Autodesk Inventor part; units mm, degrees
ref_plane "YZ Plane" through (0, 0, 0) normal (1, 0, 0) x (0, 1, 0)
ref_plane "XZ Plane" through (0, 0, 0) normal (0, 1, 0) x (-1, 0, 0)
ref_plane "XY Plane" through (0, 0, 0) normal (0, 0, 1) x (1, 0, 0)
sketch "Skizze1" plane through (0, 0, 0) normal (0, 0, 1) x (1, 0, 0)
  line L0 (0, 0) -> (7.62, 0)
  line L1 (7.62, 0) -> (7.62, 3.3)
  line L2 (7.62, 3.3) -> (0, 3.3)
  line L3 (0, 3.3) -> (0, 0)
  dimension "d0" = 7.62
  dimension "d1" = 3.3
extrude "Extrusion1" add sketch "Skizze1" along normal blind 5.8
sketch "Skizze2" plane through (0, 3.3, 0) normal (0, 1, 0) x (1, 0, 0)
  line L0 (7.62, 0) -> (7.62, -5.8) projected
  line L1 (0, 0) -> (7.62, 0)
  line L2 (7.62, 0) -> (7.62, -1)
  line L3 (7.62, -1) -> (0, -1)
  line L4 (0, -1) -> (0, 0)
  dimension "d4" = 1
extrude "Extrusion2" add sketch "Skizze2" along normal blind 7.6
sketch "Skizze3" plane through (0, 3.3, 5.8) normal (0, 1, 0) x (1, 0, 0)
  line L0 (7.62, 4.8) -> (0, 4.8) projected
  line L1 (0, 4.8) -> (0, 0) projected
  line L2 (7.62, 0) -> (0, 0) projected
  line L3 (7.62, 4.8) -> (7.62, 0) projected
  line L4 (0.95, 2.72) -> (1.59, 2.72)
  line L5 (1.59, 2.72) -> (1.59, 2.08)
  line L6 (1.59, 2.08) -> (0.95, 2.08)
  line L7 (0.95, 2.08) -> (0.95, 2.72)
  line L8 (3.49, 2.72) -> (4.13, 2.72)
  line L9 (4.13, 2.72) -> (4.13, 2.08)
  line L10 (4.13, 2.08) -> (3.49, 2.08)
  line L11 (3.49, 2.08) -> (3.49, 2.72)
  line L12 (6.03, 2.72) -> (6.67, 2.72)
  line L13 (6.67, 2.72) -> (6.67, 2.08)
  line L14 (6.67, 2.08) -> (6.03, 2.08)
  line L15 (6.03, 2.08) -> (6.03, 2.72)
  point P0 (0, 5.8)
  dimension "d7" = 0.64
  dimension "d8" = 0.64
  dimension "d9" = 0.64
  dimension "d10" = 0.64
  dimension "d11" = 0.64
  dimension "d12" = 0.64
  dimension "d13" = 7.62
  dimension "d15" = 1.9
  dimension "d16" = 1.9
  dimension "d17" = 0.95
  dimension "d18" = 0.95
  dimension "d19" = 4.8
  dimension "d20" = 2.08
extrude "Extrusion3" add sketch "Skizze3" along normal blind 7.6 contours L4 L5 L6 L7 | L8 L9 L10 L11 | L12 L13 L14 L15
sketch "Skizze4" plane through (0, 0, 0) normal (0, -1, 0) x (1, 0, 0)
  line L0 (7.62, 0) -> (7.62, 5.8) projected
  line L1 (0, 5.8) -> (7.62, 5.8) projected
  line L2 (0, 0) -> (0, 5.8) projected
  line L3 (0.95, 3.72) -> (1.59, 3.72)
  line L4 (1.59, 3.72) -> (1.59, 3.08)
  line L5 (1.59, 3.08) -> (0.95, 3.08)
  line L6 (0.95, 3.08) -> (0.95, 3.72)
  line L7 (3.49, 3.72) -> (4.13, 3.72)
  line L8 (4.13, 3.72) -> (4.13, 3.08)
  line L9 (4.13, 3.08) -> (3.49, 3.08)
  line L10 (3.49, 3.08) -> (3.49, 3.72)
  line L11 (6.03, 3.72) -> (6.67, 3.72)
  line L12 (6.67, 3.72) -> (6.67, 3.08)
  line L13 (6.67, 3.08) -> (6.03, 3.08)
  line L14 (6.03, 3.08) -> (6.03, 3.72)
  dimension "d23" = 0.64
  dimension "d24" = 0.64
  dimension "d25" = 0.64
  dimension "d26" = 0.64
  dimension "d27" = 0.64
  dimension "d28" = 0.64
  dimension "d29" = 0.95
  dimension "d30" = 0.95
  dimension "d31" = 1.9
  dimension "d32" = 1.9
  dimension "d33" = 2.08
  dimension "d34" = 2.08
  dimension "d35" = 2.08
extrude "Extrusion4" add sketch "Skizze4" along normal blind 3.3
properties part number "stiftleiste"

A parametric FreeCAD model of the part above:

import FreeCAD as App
import Part
import Sketcher

doc = App.newDocument("Part")
body = doc.addObject("PartDesign::Body", "Body")

# Sketch on XY plane
sketch1 = body.newObject("Sketcher::SketchObject", "Sketch")
sketch1.AttachmentSupport = (doc.getObject("XY_Plane"), [""])
sketch1.MapMode = "FlatFace"
sketch1.addGeometry([
    Part.LineSegment(App.Vector(0, 3.3, 0), App.Vector(0, 0, 0)),
    Part.LineSegment(App.Vector(0, 0, 0), App.Vector(7.6, 0, 0)),
    Part.LineSegment(App.Vector(7.6, 0, 0), App.Vector(7.6, 3.3, 0)),
    Part.LineSegment(App.Vector(7.6, 3.3, 0), App.Vector(0, 3.3, 0)),
], False)
sketch1.addConstraint([
    Sketcher.Constraint("Coincident", 0, 2, 1, 1),
    Sketcher.Constraint("Coincident", 1, 2, 2, 1),
    Sketcher.Constraint("Coincident", 2, 2, 3, 1),
    Sketcher.Constraint("Coincident", 3, 2, 0, 1),
    Sketcher.Constraint("Vertical", 0),
    Sketcher.Constraint("Horizontal", 1),
    Sketcher.Constraint("Vertical", 2),
    Sketcher.Constraint("Horizontal", 3),
    Sketcher.Constraint("Coincident", 0, 2, -1, 1),
    Sketcher.Constraint("DistanceY", 0, 2, 0, 1, 3.3),
    Sketcher.Constraint("DistanceX", 1, 1, 1, 2, 7.62),
])
pad1 = body.newObject("PartDesign::Pad", "Pad")
pad1.Profile = sketch1
pad1.Length = 5.8

# Sketch on XZ plane
sketch2 = body.newObject("Sketcher::SketchObject", "Sketch001")
sketch2.AttachmentSupport = (doc.getObject("XZ_Plane"), [""])
sketch2.MapMode = "FlatFace"
sketch2.AttachmentOffset = App.Placement(App.Vector(0, 0, -3.3), App.Rotation())
sketch2.addGeometry([
    Part.LineSegment(App.Vector(7.6, 1, 0), App.Vector(7.6, 0, 0)),
    Part.LineSegment(App.Vector(7.6, 0, 0), App.Vector(0, 0, 0)),
    Part.LineSegment(App.Vector(0, 0, 0), App.Vector(0, 1, 0)),
    Part.LineSegment(App.Vector(0, 1, 0), App.Vector(7.6, 1, 0)),
], False)
sketch2.addConstraint([
    Sketcher.Constraint("Coincident", 0, 2, 1, 1),
    Sketcher.Constraint("Coincident", 1, 2, 2, 1),
    Sketcher.Constraint("Coincident", 2, 2, 3, 1),
    Sketcher.Constraint("Coincident", 3, 2, 0, 1),
    Sketcher.Constraint("Vertical", 0),
    Sketcher.Constraint("Horizontal", 1),
    Sketcher.Constraint("Vertical", 2),
    Sketcher.Constraint("Horizontal", 3),
    Sketcher.Constraint("Coincident", 1, 2, -1, 1),
    Sketcher.Constraint("DistanceY", 0, 2, 0, 1, 1.0),
    Sketcher.Constraint("DistanceX", 1, 2, 1, 1, 7.62),
])
pad2 = body.newObject("PartDesign::Pad", "Pad001")
pad2.Profile = sketch2
pad2.Length = 7.6
pad2.Reversed = True

# Sketch on XZ plane
sketch3 = body.newObject("Sketcher::SketchObject", "Sketch002")
sketch3.AttachmentSupport = (doc.getObject("XZ_Plane"), [""])
sketch3.MapMode = "FlatFace"
sketch3.AttachmentOffset = App.Placement(App.Vector(0, 0, -3.3), App.Rotation())
sketch3.addGeometry([
    Part.LineSegment(App.Vector(1.6, 3.1, 0), App.Vector(0.9, 3.1, 0)),  # 0
    Part.LineSegment(App.Vector(0.9, 3.1, 0), App.Vector(0.9, 3.7, 0)),  # 1
    Part.LineSegment(App.Vector(0.9, 3.7, 0), App.Vector(1.6, 3.7, 0)),  # 2
    Part.LineSegment(App.Vector(1.6, 3.7, 0), App.Vector(1.6, 3.1, 0)),  # 3
    Part.LineSegment(App.Vector(4.1, 3.1, 0), App.Vector(3.5, 3.1, 0)),  # 4
    Part.LineSegment(App.Vector(3.5, 3.1, 0), App.Vector(3.5, 3.7, 0)),  # 5
    Part.LineSegment(App.Vector(3.5, 3.7, 0), App.Vector(4.1, 3.7, 0)),  # 6
    Part.LineSegment(App.Vector(4.1, 3.7, 0), App.Vector(4.1, 3.1, 0)),  # 7
    Part.LineSegment(App.Vector(6.7, 3.1, 0), App.Vector(6, 3.1, 0)),  # 8
    Part.LineSegment(App.Vector(6, 3.1, 0), App.Vector(6, 3.7, 0)),  # 9
    Part.LineSegment(App.Vector(6, 3.7, 0), App.Vector(6.7, 3.7, 0)),  # 10
    Part.LineSegment(App.Vector(6.7, 3.7, 0), App.Vector(6.7, 3.1, 0)),  # 11
], False)
sketch3.addConstraint([
    Sketcher.Constraint("Coincident", 0, 2, 1, 1),
    Sketcher.Constraint("Coincident", 1, 2, 2, 1),
    Sketcher.Constraint("Coincident", 2, 2, 3, 1),
    Sketcher.Constraint("Coincident", 3, 2, 0, 1),
    Sketcher.Constraint("Coincident", 4, 2, 5, 1),
    Sketcher.Constraint("Coincident", 5, 2, 6, 1),
    Sketcher.Constraint("Coincident", 6, 2, 7, 1),
    Sketcher.Constraint("Coincident", 7, 2, 4, 1),
    Sketcher.Constraint("Coincident", 8, 2, 9, 1),
    Sketcher.Constraint("Coincident", 9, 2, 10, 1),
    Sketcher.Constraint("Coincident", 10, 2, 11, 1),
    Sketcher.Constraint("Coincident", 11, 2, 8, 1),
    Sketcher.Constraint("Horizontal", 0),
    Sketcher.Constraint("Vertical", 1),
    Sketcher.Constraint("Horizontal", 2),
    Sketcher.Constraint("Vertical", 3),
    Sketcher.Constraint("Horizontal", 4),
    Sketcher.Constraint("Vertical", 5),
    Sketcher.Constraint("Horizontal", 6),
    Sketcher.Constraint("Vertical", 7),
    Sketcher.Constraint("Horizontal", 8),
    Sketcher.Constraint("Vertical", 9),
    Sketcher.Constraint("Horizontal", 10),
    Sketcher.Constraint("Vertical", 11),
    Sketcher.Constraint("Horizontal", 3, 2, 4, 2),
    Sketcher.Constraint("Horizontal", 2, 2, 5, 2),
    Sketcher.Constraint("Horizontal", 7, 2, 8, 2),
    Sketcher.Constraint("Horizontal", 6, 2, 9, 2),
    Sketcher.Constraint("Equal", 2, 4),
    Sketcher.Constraint("Equal", 6, 8),
    Sketcher.Constraint("Equal", 10, 1),
    Sketcher.Constraint("DistanceX", 0, 2, 0, 1, 0.64),
    Sketcher.Constraint("DistanceX", 3, 2, 4, 2, 1.9),
    Sketcher.Constraint("DistanceX", 7, 2, 8, 2, 1.9),
    Sketcher.Constraint("DistanceX", -1, 1, 0, 2, 0.95),
    Sketcher.Constraint("DistanceY", -1, 1, 0, 2, 3.08),
])
pad3 = body.newObject("PartDesign::Pad", "Pad002")
pad3.Profile = sketch3
pad3.Length = 7.6
pad3.Reversed = True

# Sketch on XZ plane
sketch4 = body.newObject("Sketcher::SketchObject", "Sketch003")
sketch4.AttachmentSupport = (doc.getObject("XZ_Plane"), [""])
sketch4.MapMode = "FlatFace"
sketch4.addGeometry([
    Part.LineSegment(App.Vector(1.6, 3.7, 0), App.Vector(0.9, 3.7, 0)),  # 0
    Part.LineSegment(App.Vector(0.9, 3.7, 0), App.Vector(0.9, 3.1, 0)),  # 1
    Part.LineSegment(App.Vector(0.9, 3.1, 0), App.Vector(1.6, 3.1, 0)),  # 2
    Part.LineSegment(App.Vector(1.6, 3.1, 0), App.Vector(1.6, 3.7, 0)),  # 3
    Part.LineSegment(App.Vector(4.1, 3.7, 0), App.Vector(3.5, 3.7, 0)),  # 4
    Part.LineSegment(App.Vector(3.5, 3.7, 0), App.Vector(3.5, 3.1, 0)),  # 5
    Part.LineSegment(App.Vector(3.5, 3.1, 0), App.Vector(4.1, 3.1, 0)),  # 6
    Part.LineSegment(App.Vector(4.1, 3.1, 0), App.Vector(4.1, 3.7, 0)),  # 7
    Part.LineSegment(App.Vector(6.7, 3.7, 0), App.Vector(6, 3.7, 0)),  # 8
    Part.LineSegment(App.Vector(6, 3.7, 0), App.Vector(6, 3.1, 0)),  # 9
    Part.LineSegment(App.Vector(6, 3.1, 0), App.Vector(6.7, 3.1, 0)),  # 10
    Part.LineSegment(App.Vector(6.7, 3.1, 0), App.Vector(6.7, 3.7, 0)),  # 11
], False)
sketch4.addConstraint([
    Sketcher.Constraint("Coincident", 0, 2, 1, 1),
    Sketcher.Constraint("Coincident", 1, 2, 2, 1),
    Sketcher.Constraint("Coincident", 2, 2, 3, 1),
    Sketcher.Constraint("Coincident", 3, 2, 0, 1),
    Sketcher.Constraint("Coincident", 4, 2, 5, 1),
    Sketcher.Constraint("Coincident", 5, 2, 6, 1),
    Sketcher.Constraint("Coincident", 6, 2, 7, 1),
    Sketcher.Constraint("Coincident", 7, 2, 4, 1),
    Sketcher.Constraint("Coincident", 8, 2, 9, 1),
    Sketcher.Constraint("Coincident", 9, 2, 10, 1),
    Sketcher.Constraint("Coincident", 10, 2, 11, 1),
    Sketcher.Constraint("Coincident", 11, 2, 8, 1),
    Sketcher.Constraint("Horizontal", 0),
    Sketcher.Constraint("Vertical", 1),
    Sketcher.Constraint("Horizontal", 2),
    Sketcher.Constraint("Vertical", 3),
    Sketcher.Constraint("Horizontal", 4),
    Sketcher.Constraint("Vertical", 5),
    Sketcher.Constraint("Horizontal", 6),
    Sketcher.Constraint("Vertical", 7),
    Sketcher.Constraint("Horizontal", 8),
    Sketcher.Constraint("Vertical", 9),
    Sketcher.Constraint("Horizontal", 10),
    Sketcher.Constraint("Vertical", 11),
    Sketcher.Constraint("Horizontal", 3, 2, 4, 2),
    Sketcher.Constraint("Horizontal", 2, 2, 5, 2),
    Sketcher.Constraint("Horizontal", 7, 2, 8, 2),
    Sketcher.Constraint("Horizontal", 6, 2, 9, 2),
    Sketcher.Constraint("Equal", 2, 4),
    Sketcher.Constraint("Equal", 6, 8),
    Sketcher.Constraint("Equal", 10, 1),
    Sketcher.Constraint("DistanceX", 0, 2, 0, 1, 0.64),
    Sketcher.Constraint("DistanceX", 3, 2, 4, 2, 1.9),
    Sketcher.Constraint("DistanceX", 7, 2, 8, 2, 1.9),
    Sketcher.Constraint("DistanceX", -1, 1, 0, 2, 0.95),
    Sketcher.Constraint("DistanceY", -1, 1, 0, 2, 3.72),
])
pad4 = body.newObject("PartDesign::Pad", "Pad003")
pad4.Profile = sketch4
pad4.Length = 3.3

doc.recompute()
